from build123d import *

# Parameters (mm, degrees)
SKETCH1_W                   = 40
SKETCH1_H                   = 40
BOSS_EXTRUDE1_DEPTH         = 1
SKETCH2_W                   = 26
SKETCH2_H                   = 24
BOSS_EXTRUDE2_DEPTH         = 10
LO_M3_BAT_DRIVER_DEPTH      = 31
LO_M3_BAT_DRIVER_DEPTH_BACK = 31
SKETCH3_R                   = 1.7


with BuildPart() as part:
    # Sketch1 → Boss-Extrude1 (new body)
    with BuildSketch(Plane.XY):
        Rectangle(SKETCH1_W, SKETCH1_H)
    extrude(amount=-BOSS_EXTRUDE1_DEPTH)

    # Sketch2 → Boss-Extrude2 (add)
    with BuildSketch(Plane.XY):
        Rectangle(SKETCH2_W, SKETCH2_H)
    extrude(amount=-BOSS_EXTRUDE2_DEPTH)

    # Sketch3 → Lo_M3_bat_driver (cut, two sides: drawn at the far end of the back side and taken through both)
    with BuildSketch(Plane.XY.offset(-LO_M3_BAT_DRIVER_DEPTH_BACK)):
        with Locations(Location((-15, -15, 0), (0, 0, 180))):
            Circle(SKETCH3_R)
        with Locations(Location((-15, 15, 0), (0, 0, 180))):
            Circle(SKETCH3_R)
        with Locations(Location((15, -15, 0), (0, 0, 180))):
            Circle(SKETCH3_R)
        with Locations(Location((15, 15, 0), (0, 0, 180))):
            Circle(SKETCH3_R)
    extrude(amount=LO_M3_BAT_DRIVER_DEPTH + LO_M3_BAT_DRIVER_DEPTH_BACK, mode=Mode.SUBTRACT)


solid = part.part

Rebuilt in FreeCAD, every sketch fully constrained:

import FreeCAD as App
import Part
import Sketcher

V = App.Vector

doc = App.newDocument("Part")
body = doc.addObject("PartDesign::Body", "Body")

# Sketch on XY plane
sketch1 = doc.addObject("Sketcher::SketchObject", "Sketch")
body.addObject(sketch1)
sketch1.AttachmentSupport = (doc.XY_Plane, [""])
sketch1.MapMode = "FlatFace"
sketch1.addGeometry([
    Part.LineSegment(V(-20, 20, 0), V(-20, -20, 0)),
    Part.LineSegment(V(-20, -20, 0), V(20, -20, 0)),
    Part.LineSegment(V(20, -20, 0), V(20, 20, 0)),
    Part.LineSegment(V(20, 20, 0), V(-20, 20, 0)),
], False)
sketch1.addConstraint([
    Sketcher.Constraint("Coincident", 0, 2, 1, 1),
    Sketcher.Constraint("Coincident", 1, 2, 2, 1),
    Sketcher.Constraint("Coincident", 2, 2, 3, 1),
    Sketcher.Constraint("Coincident", 3, 2, 0, 1),
    Sketcher.Constraint("Vertical", 0),
    Sketcher.Constraint("Horizontal", 1),
    Sketcher.Constraint("Vertical", 2),
    Sketcher.Constraint("Horizontal", 3),
    Sketcher.Constraint("Symmetric", 0, 2, 2, 2, -1, 1),
    Sketcher.Constraint("Equal", 3, 0),
    Sketcher.Constraint("DistanceX", 1, 1, 1, 2, 40.0),
])
pad1 = doc.addObject("PartDesign::Pad", "Pad")
body.addObject(pad1)
pad1.Profile = sketch1
pad1.Length = 1
pad1.Reversed = True

# Sketch on XY plane
sketch2 = doc.addObject("Sketcher::SketchObject", "Sketch001")
body.addObject(sketch2)
sketch2.AttachmentSupport = (doc.XY_Plane, [""])
sketch2.MapMode = "FlatFace"
sketch2.addGeometry([
    Part.LineSegment(V(-13, 12, 0), V(-13, -12, 0)),
    Part.LineSegment(V(-13, -12, 0), V(13, -12, 0)),
    Part.LineSegment(V(13, -12, 0), V(13, 12, 0)),
    Part.LineSegment(V(13, 12, 0), V(-13, 12, 0)),
], False)
sketch2.addConstraint([
    Sketcher.Constraint("Coincident", 0, 2, 1, 1),
    Sketcher.Constraint("Coincident", 1, 2, 2, 1),
    Sketcher.Constraint("Coincident", 2, 2, 3, 1),
    Sketcher.Constraint("Coincident", 3, 2, 0, 1),
    Sketcher.Constraint("Vertical", 0),
    Sketcher.Constraint("Horizontal", 1),
    Sketcher.Constraint("Vertical", 2),
    Sketcher.Constraint("Horizontal", 3),
    Sketcher.Constraint("Symmetric", 0, 2, 2, 2, -1, 1),
    Sketcher.Constraint("DistanceX", 1, 1, 1, 2, 26.0),
    Sketcher.Constraint("DistanceY", 0, 2, 0, 1, 24.0),
])
pad2 = doc.addObject("PartDesign::Pad", "Pad001")
body.addObject(pad2)
pad2.Profile = sketch2
pad2.Length = 10
pad2.Reversed = True

# Sketch on XY plane
sketch3 = doc.addObject("Sketcher::SketchObject", "Sketch002")
body.addObject(sketch3)
sketch3.AttachmentSupport = (doc.XY_Plane, [""])
sketch3.MapMode = "FlatFace"
sketch3.addGeometry([
    Part.Circle(V(-15, -15, 0), V(0, 0, 1), 1.7),
    Part.Circle(V(-15, 15, 0), V(0, 0, 1), 1.7),
    Part.Circle(V(15, -15, 0), V(0, 0, 1), 1.7),
    Part.Circle(V(15, 15, 0), V(0, 0, 1), 1.7),
], False)
sketch3.addConstraint([
    Sketcher.Constraint("Equal", 0, 1),
    Sketcher.Constraint("Equal", 1, 2),
    Sketcher.Constraint("Equal", 2, 3),
    Sketcher.Constraint("Symmetric", 1, 3, 2, 3, -1, 1),
    Sketcher.Constraint("Symmetric", 0, 3, 3, 3, -1, 1),
    Sketcher.Constraint("Symmetric", 0, 3, 2, 3, -2),
    Sketcher.Constraint("Diameter", 0, 3.4),
    Sketcher.Constraint("DistanceX", 0, 3, -1, 1, 15.0),
    Sketcher.Constraint("DistanceY", 0, 3, -1, 1, 15.0),
])
pocket1 = doc.addObject("PartDesign::Pocket", "Pocket")
body.addObject(pocket1)
pocket1.Profile = sketch3
pocket1.Type = "ThroughAll"
pocket1.Midplane = True

doc.recompute()
